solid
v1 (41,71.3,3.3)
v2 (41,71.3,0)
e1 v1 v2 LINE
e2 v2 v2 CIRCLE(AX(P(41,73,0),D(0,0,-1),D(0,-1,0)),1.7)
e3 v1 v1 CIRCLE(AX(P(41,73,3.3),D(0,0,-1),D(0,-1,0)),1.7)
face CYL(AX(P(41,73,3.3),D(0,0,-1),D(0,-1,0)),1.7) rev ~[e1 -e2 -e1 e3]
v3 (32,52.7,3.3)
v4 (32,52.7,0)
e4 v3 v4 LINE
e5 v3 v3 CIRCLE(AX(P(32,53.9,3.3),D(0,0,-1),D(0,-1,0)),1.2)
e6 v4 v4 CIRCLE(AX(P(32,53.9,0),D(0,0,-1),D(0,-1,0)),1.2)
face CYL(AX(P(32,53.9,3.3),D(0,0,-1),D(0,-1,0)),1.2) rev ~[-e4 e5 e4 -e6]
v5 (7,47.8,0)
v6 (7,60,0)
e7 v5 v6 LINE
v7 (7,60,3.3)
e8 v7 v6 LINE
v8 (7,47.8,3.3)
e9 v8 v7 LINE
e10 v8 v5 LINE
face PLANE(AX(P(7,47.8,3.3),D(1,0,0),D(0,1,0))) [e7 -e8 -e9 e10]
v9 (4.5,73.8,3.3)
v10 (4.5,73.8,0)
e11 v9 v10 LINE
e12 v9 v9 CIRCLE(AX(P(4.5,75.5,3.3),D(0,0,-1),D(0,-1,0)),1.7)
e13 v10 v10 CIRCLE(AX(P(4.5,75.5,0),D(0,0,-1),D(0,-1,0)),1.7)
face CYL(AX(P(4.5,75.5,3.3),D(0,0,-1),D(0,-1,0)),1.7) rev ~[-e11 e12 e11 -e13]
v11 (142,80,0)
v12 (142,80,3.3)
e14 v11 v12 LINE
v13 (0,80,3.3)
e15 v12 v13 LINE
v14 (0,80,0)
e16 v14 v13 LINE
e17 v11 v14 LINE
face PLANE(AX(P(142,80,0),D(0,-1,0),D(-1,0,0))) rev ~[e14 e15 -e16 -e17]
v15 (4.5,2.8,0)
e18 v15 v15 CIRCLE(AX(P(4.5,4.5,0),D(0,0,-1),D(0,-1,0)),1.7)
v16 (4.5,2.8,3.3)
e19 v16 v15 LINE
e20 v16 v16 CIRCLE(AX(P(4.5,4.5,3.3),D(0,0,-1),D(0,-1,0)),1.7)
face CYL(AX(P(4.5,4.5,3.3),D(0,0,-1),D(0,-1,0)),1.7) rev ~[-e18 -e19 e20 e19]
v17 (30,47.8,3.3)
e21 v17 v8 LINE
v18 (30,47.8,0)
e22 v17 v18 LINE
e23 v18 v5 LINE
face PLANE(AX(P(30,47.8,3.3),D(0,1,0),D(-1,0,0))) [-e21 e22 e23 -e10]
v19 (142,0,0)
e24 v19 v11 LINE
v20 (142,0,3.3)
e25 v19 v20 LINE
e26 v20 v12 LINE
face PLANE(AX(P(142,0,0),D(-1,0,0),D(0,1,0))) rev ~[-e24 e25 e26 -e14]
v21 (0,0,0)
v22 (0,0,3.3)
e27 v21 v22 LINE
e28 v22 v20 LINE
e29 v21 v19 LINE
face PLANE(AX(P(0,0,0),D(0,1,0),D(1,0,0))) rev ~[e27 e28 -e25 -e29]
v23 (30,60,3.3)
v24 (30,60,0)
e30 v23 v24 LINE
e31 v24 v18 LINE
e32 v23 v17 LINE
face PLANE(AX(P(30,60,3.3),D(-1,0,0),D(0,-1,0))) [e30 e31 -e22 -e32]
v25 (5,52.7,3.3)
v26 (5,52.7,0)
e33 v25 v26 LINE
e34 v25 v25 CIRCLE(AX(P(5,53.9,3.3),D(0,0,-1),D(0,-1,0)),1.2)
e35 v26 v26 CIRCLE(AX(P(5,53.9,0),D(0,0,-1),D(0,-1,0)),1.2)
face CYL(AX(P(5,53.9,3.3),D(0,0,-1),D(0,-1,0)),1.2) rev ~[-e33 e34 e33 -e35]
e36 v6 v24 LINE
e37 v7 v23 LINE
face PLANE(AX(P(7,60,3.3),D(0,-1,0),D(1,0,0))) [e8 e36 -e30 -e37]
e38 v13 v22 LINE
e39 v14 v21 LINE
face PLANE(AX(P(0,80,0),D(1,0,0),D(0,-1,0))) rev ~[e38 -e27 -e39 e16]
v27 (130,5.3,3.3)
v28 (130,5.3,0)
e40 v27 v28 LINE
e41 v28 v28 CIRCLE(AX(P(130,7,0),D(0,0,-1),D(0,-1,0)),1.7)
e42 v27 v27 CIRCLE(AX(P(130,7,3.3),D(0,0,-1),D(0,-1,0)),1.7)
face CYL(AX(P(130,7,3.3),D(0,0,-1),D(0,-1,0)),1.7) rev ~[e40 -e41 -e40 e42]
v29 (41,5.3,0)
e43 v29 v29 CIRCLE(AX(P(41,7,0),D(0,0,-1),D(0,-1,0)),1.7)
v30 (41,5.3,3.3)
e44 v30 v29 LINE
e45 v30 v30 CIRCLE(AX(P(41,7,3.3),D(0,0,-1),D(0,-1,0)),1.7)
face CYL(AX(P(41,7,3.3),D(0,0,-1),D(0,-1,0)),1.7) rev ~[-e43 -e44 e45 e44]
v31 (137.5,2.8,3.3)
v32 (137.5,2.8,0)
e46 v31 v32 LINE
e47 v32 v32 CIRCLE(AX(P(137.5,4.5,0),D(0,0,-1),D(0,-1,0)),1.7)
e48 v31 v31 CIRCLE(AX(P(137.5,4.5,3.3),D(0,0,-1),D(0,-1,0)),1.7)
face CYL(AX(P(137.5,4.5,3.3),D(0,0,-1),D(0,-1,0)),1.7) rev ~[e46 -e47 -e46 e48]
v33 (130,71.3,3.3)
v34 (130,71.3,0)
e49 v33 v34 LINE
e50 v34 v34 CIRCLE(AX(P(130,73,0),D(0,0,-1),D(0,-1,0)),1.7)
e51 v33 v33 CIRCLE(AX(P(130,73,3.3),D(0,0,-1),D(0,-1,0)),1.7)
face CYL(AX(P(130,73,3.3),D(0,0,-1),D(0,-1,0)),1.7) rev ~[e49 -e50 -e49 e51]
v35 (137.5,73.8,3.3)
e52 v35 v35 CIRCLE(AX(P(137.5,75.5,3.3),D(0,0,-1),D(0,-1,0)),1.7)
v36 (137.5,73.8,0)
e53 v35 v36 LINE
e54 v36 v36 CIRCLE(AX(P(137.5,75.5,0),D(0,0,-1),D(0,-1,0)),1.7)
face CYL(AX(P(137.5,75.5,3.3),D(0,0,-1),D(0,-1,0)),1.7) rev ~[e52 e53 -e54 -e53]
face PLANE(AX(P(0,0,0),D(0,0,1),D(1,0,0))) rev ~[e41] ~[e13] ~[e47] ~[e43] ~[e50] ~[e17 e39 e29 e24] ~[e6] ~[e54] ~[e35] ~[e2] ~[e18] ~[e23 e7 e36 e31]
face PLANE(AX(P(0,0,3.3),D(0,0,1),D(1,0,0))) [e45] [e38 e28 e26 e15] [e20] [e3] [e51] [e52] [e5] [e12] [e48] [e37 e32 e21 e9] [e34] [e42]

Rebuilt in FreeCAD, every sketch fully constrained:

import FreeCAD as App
import Part
import Sketcher
from FreeCAD import Vector
Q = App.Units.Quantity


def add_polygon(sketch, points):
    """Adds a closed chain of lines whose ends are joined by coincident constraints."""
    first, n = sketch.GeometryCount, len(points)
    for a, b in zip(points, points[1:] + points[:1]):
        sketch.addGeometry(Part.LineSegment(App.Vector(*a, 0), App.Vector(*b, 0)), False)
    for i in range(n):
        sketch.addConstraint(Sketcher.Constraint("Coincident", first + i, 2, first + (i + 1) % n, 1))

doc = App.newDocument("Part")
params = doc.addObject("Spreadsheet::Sheet", "Params")
for row, (alias, value) in enumerate([
    ("sketch1_width", "142 mm"),
    ("sketch1_height", "80 mm"),
    ("pad1_length", "3.3 mm"),
    ("sketch2_diameter", "3.4 mm"),
    ("hole_diameter", "3.4 mm"),
    ("sketch3_diameter", "3.4 mm"),
    ("hole2_diameter", "3.4 mm"),
    ("sketch4_diameter", "3.4 mm"),
    ("hole3_diameter", "3.4 mm"),
    ("sketch5_diameter", "3.4 mm"),
    ("hole4_diameter", "3.4 mm"),
    ("sketch6_diameter", "3.4 mm"),
    ("hole5_diameter", "3.4 mm"),
    ("sketch7_diameter", "3.4 mm"),
    ("hole6_diameter", "3.4 mm"),
    ("sketch8_diameter", "3.4 mm"),
    ("hole7_diameter", "3.4 mm"),
    ("sketch9_diameter", "3.4 mm"),
    ("hole8_diameter", "3.4 mm"),
    ("sketch10_width", "23 mm"),
    ("sketch10_height", "12.2 mm"),
    ("pocket1_length", "10 mm"),
    ("sketch11_diameter", "2.4 mm"),
    ("hole9_diameter", "2.4 mm"),
    ("sketch12_diameter", "2.4 mm"),
    ("hole10_diameter", "2.4 mm"),
], start=1):
    params.set(f"A{row}", alias)
    params.set(f"B{row}", "=" + value)
    params.setAlias(f"B{row}", alias)

body = doc.addObject("PartDesign::Body", "Body")

# Sketch on XY plane
sketch1 = body.newObject("Sketcher::SketchObject", "Sketch")
sketch1.AttachmentSupport = (doc.getObject("XY_Plane"), [""])
sketch1.MapMode = "FlatFace"
add_polygon(sketch1, [(0, 80), (0, 0), (142, 0), (142, 80)])  # lines 0-3
sketch1.addConstraint(Sketcher.Constraint("Vertical", 0))
sketch1.addConstraint(Sketcher.Constraint("Horizontal", 1))
sketch1.addConstraint(Sketcher.Constraint("Vertical", 2))
sketch1.addConstraint(Sketcher.Constraint("Horizontal", 3))
sketch1.addConstraint(Sketcher.Constraint("Coincident", 0, 2, -1, 1))
sketch1.addConstraint(Sketcher.Constraint("DistanceX", 1, 1, 1, 2, Q("142 mm")))
sketch1.addConstraint(Sketcher.Constraint("DistanceY", 0, 2, 0, 1, Q("80 mm")))
sketch1.setExpression("Constraints[9]", "Params.sketch1_width")
sketch1.setExpression("Constraints[10]", "Params.sketch1_height")
pad1 = body.newObject("PartDesign::Pad", "Pad")
pad1.Profile = sketch1
pad1.setExpression("Length", "Params.pad1_length")

# Sketch on XY plane
sketch2 = body.newObject("Sketcher::SketchObject", "Sketch001")
sketch2.AttachmentSupport = (doc.getObject("XY_Plane"), [""])
sketch2.MapMode = "FlatFace"
sketch2.AttachmentOffset = App.Placement(Vector(0, 0, 3.3), App.Rotation())
sketch2.addGeometry(Part.Circle(Vector(4.5, 75.5, 0), Vector(0, 0, 1), 1.7), False)
sketch2.addConstraint(Sketcher.Constraint("Diameter", 0, Q("3.4 mm")))
sketch2.addConstraint(Sketcher.Constraint("DistanceX", -1, 1, 0, 3, Q("4.5 mm")))
sketch2.addConstraint(Sketcher.Constraint("DistanceY", -1, 1, 0, 3, Q("75.5 mm")))
sketch2.setExpression("Constraints[0]", "Params.sketch2_diameter")
doc.recompute()
hole = body.newObject("PartDesign::Hole", "Hole")
hole.Profile = sketch2
hole.ThreadType = "None"
hole.setExpression("Diameter", "Params.hole_diameter")
hole.DepthType = "ThroughAll"

# Sketch on XY plane
sketch3 = body.newObject("Sketcher::SketchObject", "Sketch002")
sketch3.AttachmentSupport = (doc.getObject("XY_Plane"), [""])
sketch3.MapMode = "FlatFace"
sketch3.AttachmentOffset = App.Placement(Vector(0, 0, 3.3), App.Rotation())
sketch3.addGeometry(Part.Circle(Vector(137.5, 75.5, 0), Vector(0, 0, 1), 1.7), False)
sketch3.addConstraint(Sketcher.Constraint("Diameter", 0, Q("3.4 mm")))
sketch3.addConstraint(Sketcher.Constraint("DistanceX", -1, 1, 0, 3, Q("137.5 mm")))
sketch3.addConstraint(Sketcher.Constraint("DistanceY", -1, 1, 0, 3, Q("75.5 mm")))
sketch3.setExpression("Constraints[0]", "Params.sketch3_diameter")
doc.recompute()
hole2 = body.newObject("PartDesign::Hole", "Hole001")
hole2.Profile = sketch3
hole2.ThreadType = "None"
hole2.setExpression("Diameter", "Params.hole2_diameter")
hole2.DepthType = "ThroughAll"

# Sketch on XY plane
sketch4 = body.newObject("Sketcher::SketchObject", "Sketch003")
sketch4.AttachmentSupport = (doc.getObject("XY_Plane"), [""])
sketch4.MapMode = "FlatFace"
sketch4.AttachmentOffset = App.Placement(Vector(0, 0, 3.3), App.Rotation())
sketch4.addGeometry(Part.Circle(Vector(137.5, 4.5, 0), Vector(0, 0, 1), 1.7), False)
sketch4.addConstraint(Sketcher.Constraint("Diameter", 0, Q("3.4 mm")))
sketch4.addConstraint(Sketcher.Constraint("DistanceX", -1, 1, 0, 3, Q("137.5 mm")))
sketch4.addConstraint(Sketcher.Constraint("DistanceY", -1, 1, 0, 3, Q("4.5 mm")))
sketch4.setExpression("Constraints[0]", "Params.sketch4_diameter")
doc.recompute()
hole3 = body.newObject("PartDesign::Hole", "Hole002")
hole3.Profile = sketch4
hole3.ThreadType = "None"
hole3.setExpression("Diameter", "Params.hole3_diameter")
hole3.DepthType = "ThroughAll"

# Sketch on XY plane
sketch5 = body.newObject("Sketcher::SketchObject", "Sketch004")
sketch5.AttachmentSupport = (doc.getObject("XY_Plane"), [""])
sketch5.MapMode = "FlatFace"
sketch5.AttachmentOffset = App.Placement(Vector(0, 0, 3.3), App.Rotation())
sketch5.addGeometry(Part.Circle(Vector(4.5, 4.5, 0), Vector(0, 0, 1), 1.7), False)
sketch5.addConstraint(Sketcher.Constraint("Diameter", 0, Q("3.4 mm")))
sketch5.addConstraint(Sketcher.Constraint("DistanceX", -1, 1, 0, 3, Q("4.5 mm")))
sketch5.addConstraint(Sketcher.Constraint("DistanceY", -1, 1, 0, 3, Q("4.5 mm")))
sketch5.setExpression("Constraints[0]", "Params.sketch5_diameter")
doc.recompute()
hole4 = body.newObject("PartDesign::Hole", "Hole003")
hole4.Profile = sketch5
hole4.ThreadType = "None"
hole4.setExpression("Diameter", "Params.hole4_diameter")
hole4.DepthType = "ThroughAll"

# Sketch on XY plane
sketch6 = body.newObject("Sketcher::SketchObject", "Sketch005")
sketch6.AttachmentSupport = (doc.getObject("XY_Plane"), [""])
sketch6.MapMode = "FlatFace"
sketch6.AttachmentOffset = App.Placement(Vector(0, 0, 3.3), App.Rotation())
sketch6.addGeometry(Part.Circle(Vector(130, 73, 0), Vector(0, 0, 1), 1.7), False)
sketch6.addConstraint(Sketcher.Constraint("Diameter", 0, Q("3.4 mm")))
sketch6.addConstraint(Sketcher.Constraint("DistanceX", -1, 1, 0, 3, Q("130 mm")))
sketch6.addConstraint(Sketcher.Constraint("DistanceY", -1, 1, 0, 3, Q("73 mm")))
sketch6.setExpression("Constraints[0]", "Params.sketch6_diameter")
doc.recompute()
hole5 = body.newObject("PartDesign::Hole", "Hole004")
hole5.Profile = sketch6
hole5.ThreadType = "None"
hole5.setExpression("Diameter", "Params.hole5_diameter")
hole5.DepthType = "ThroughAll"

# Sketch on XY plane
sketch7 = body.newObject("Sketcher::SketchObject", "Sketch006")
sketch7.AttachmentSupport = (doc.getObject("XY_Plane"), [""])
sketch7.MapMode = "FlatFace"
sketch7.AttachmentOffset = App.Placement(Vector(0, 0, 3.3), App.Rotation())
sketch7.addGeometry(Part.Circle(Vector(130, 7, 0), Vector(0, 0, 1), 1.7), False)
sketch7.addConstraint(Sketcher.Constraint("Diameter", 0, Q("3.4 mm")))
sketch7.addConstraint(Sketcher.Constraint("DistanceX", -1, 1, 0, 3, Q("130 mm")))
sketch7.addConstraint(Sketcher.Constraint("DistanceY", -1, 1, 0, 3, Q("7 mm")))
sketch7.setExpression("Constraints[0]", "Params.sketch7_diameter")
doc.recompute()
hole6 = body.newObject("PartDesign::Hole", "Hole005")
hole6.Profile = sketch7
hole6.ThreadType = "None"
hole6.setExpression("Diameter", "Params.hole6_diameter")
hole6.DepthType = "ThroughAll"

# Sketch on XY plane
sketch8 = body.newObject("Sketcher::SketchObject", "Sketch007")
sketch8.AttachmentSupport = (doc.getObject("XY_Plane"), [""])
sketch8.MapMode = "FlatFace"
sketch8.AttachmentOffset = App.Placement(Vector(0, 0, 3.3), App.Rotation())
sketch8.addGeometry(Part.Circle(Vector(41, 73, 0), Vector(0, 0, 1), 1.7), False)
sketch8.addConstraint(Sketcher.Constraint("Diameter", 0, Q("3.4 mm")))
sketch8.addConstraint(Sketcher.Constraint("DistanceX", -1, 1, 0, 3, Q("41 mm")))
sketch8.addConstraint(Sketcher.Constraint("DistanceY", -1, 1, 0, 3, Q("73 mm")))
sketch8.setExpression("Constraints[0]", "Params.sketch8_diameter")
doc.recompute()
hole7 = body.newObject("PartDesign::Hole", "Hole006")
hole7.Profile = sketch8
hole7.ThreadType = "None"
hole7.setExpression("Diameter", "Params.hole7_diameter")
hole7.DepthType = "ThroughAll"

# Sketch on XY plane
sketch9 = body.newObject("Sketcher::SketchObject", "Sketch008")
sketch9.AttachmentSupport = (doc.getObject("XY_Plane"), [""])
sketch9.MapMode = "FlatFace"
sketch9.AttachmentOffset = App.Placement(Vector(0, 0, 3.3), App.Rotation())
sketch9.addGeometry(Part.Circle(Vector(41, 7, 0), Vector(0, 0, 1), 1.7), False)
sketch9.addConstraint(Sketcher.Constraint("Diameter", 0, Q("3.4 mm")))
sketch9.addConstraint(Sketcher.Constraint("DistanceX", -1, 1, 0, 3, Q("41 mm")))
sketch9.addConstraint(Sketcher.Constraint("DistanceY", -1, 1, 0, 3, Q("7 mm")))
sketch9.setExpression("Constraints[0]", "Params.sketch9_diameter")
doc.recompute()
hole8 = body.newObject("PartDesign::Hole", "Hole007")
hole8.Profile = sketch9
hole8.ThreadType = "None"
hole8.setExpression("Diameter", "Params.hole8_diameter")
hole8.DepthType = "ThroughAll"

# Sketch on XY plane
sketch10 = body.newObject("Sketcher::SketchObject", "Sketch009")
sketch10.AttachmentSupport = (doc.getObject("XY_Plane"), [""])
sketch10.MapMode = "FlatFace"
sketch10.AttachmentOffset = App.Placement(Vector(0, 0, 3.3), App.Rotation())
add_polygon(sketch10, [(30, 60), (7, 60), (7, 48), (30, 48)])  # lines 0-3
sketch10.addConstraint(Sketcher.Constraint("Horizontal", 0))
sketch10.addConstraint(Sketcher.Constraint("Vertical", 1))
sketch10.addConstraint(Sketcher.Constraint("Horizontal", 2))
sketch10.addConstraint(Sketcher.Constraint("Vertical", 3))
sketch10.addConstraint(Sketcher.Constraint("DistanceX", 0, 2, 0, 1, Q("23 mm")))
sketch10.addConstraint(Sketcher.Constraint("DistanceY", 1, 2, 1, 1, Q("12.2 mm")))
sketch10.addConstraint(Sketcher.Constraint("DistanceX", -1, 1, 0, 2, Q("7 mm")))
sketch10.addConstraint(Sketcher.Constraint("DistanceY", -1, 1, 0, 2, Q("60 mm")))
sketch10.setExpression("Constraints[8]", "Params.sketch10_width")
sketch10.setExpression("Constraints[9]", "Params.sketch10_height")
pocket1 = body.newObject("PartDesign::Pocket", "Pocket")
pocket1.Profile = sketch10
pocket1.setExpression("Length", "Params.pocket1_length")

# Sketch on XY plane
sketch11 = body.newObject("Sketcher::SketchObject", "Sketch010")
sketch11.AttachmentSupport = (doc.getObject("XY_Plane"), [""])
sketch11.MapMode = "FlatFace"
sketch11.AttachmentOffset = App.Placement(Vector(0, 0, 3.3), App.Rotation())
sketch11.addGeometry(Part.Circle(Vector(5, 53.9, 0), Vector(0, 0, 1), 1.2), False)
sketch11.addConstraint(Sketcher.Constraint("Diameter", 0, Q("2.4 mm")))
sketch11.addConstraint(Sketcher.Constraint("DistanceX", -1, 1, 0, 3, Q("5 mm")))
sketch11.addConstraint(Sketcher.Constraint("DistanceY", -1, 1, 0, 3, Q("53.9 mm")))
sketch11.setExpression("Constraints[0]", "Params.sketch11_diameter")
doc.recompute()
hole9 = body.newObject("PartDesign::Hole", "Hole008")
hole9.Profile = sketch11
hole9.ThreadType = "None"
hole9.setExpression("Diameter", "Params.hole9_diameter")
hole9.DepthType = "ThroughAll"

# Sketch on XY plane
sketch12 = body.newObject("Sketcher::SketchObject", "Sketch011")
sketch12.AttachmentSupport = (doc.getObject("XY_Plane"), [""])
sketch12.MapMode = "FlatFace"
sketch12.AttachmentOffset = App.Placement(Vector(0, 0, 3.3), App.Rotation())
sketch12.addGeometry(Part.Circle(Vector(32, 53.9, 0), Vector(0, 0, 1), 1.2), False)
sketch12.addConstraint(Sketcher.Constraint("Diameter", 0, Q("2.4 mm")))
sketch12.addConstraint(Sketcher.Constraint("DistanceX", -1, 1, 0, 3, Q("32 mm")))
sketch12.addConstraint(Sketcher.Constraint("DistanceY", -1, 1, 0, 3, Q("53.9 mm")))
sketch12.setExpression("Constraints[0]", "Params.sketch12_diameter")
doc.recompute()
hole10 = body.newObject("PartDesign::Hole", "Hole009")
hole10.Profile = sketch12
hole10.ThreadType = "None"
hole10.setExpression("Diameter", "Params.hole10_diameter")
hole10.DepthType = "ThroughAll"

doc.recompute()
